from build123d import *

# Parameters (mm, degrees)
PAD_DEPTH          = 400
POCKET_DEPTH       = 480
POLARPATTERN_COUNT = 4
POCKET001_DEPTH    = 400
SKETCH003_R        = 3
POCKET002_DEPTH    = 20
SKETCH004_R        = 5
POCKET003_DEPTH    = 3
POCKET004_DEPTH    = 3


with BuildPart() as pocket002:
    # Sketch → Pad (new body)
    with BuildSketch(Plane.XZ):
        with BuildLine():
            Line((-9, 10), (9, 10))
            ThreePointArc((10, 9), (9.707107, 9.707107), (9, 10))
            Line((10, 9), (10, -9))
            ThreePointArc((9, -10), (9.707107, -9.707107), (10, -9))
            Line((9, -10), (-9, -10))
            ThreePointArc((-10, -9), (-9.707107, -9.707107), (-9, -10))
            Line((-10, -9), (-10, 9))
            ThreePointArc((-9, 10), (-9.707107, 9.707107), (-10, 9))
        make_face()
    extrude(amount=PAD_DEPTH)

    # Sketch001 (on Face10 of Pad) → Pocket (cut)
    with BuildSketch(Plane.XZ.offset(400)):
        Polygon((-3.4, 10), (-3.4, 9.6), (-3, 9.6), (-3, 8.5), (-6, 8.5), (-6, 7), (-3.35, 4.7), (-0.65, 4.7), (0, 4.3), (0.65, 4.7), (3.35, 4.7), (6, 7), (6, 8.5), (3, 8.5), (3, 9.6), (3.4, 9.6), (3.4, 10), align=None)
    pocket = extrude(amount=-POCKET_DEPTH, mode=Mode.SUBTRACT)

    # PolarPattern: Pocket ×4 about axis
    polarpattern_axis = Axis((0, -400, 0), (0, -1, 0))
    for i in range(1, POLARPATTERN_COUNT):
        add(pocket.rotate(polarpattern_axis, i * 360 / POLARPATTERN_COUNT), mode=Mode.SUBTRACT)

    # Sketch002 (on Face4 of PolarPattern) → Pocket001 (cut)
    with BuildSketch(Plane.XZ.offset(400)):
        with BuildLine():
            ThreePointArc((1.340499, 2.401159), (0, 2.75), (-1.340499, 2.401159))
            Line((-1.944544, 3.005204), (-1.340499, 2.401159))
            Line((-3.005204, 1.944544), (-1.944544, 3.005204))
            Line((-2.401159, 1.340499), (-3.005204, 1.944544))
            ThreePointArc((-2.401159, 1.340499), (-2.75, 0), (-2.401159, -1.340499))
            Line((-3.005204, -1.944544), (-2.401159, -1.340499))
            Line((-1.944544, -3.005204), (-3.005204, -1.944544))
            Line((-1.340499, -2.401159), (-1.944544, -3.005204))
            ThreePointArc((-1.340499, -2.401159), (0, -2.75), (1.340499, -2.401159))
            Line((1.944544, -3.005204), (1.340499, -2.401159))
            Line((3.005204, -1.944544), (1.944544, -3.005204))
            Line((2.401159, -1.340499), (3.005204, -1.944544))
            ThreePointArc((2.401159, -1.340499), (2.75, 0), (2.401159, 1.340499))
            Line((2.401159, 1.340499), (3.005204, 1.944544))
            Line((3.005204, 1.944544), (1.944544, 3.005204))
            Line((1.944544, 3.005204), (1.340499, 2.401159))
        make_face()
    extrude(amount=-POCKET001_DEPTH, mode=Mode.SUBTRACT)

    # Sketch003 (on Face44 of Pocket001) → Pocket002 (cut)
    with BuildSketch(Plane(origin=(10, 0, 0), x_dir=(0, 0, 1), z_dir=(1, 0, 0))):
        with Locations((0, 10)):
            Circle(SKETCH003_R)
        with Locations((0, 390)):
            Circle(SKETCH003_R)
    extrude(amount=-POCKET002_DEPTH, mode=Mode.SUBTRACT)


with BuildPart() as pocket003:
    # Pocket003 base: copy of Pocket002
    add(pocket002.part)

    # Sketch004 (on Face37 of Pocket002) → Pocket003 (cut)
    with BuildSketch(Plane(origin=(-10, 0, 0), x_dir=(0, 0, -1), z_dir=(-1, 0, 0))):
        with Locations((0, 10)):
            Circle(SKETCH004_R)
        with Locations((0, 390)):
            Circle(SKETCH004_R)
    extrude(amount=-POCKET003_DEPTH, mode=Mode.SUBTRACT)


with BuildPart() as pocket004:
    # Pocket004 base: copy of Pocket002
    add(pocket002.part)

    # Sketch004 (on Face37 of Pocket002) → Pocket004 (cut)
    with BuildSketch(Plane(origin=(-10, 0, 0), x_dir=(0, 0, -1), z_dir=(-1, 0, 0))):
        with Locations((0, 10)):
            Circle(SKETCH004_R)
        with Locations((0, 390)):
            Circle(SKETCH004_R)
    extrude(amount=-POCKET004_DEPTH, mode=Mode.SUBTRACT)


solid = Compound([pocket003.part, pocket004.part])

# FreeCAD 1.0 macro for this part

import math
import FreeCAD as App
import Part
import Sketcher


def add_polygon(sketch, points):
    """Adds a closed chain of lines whose ends are joined by coincident constraints."""
    first, n = sketch.GeometryCount, len(points)
    for a, b in zip(points, points[1:] + points[:1]):
        sketch.addGeometry(Part.LineSegment(App.Vector(*a, 0), App.Vector(*b, 0)), False)
    for i in range(n):
        sketch.addConstraint(Sketcher.Constraint("Coincident", first + i, 2, first + (i + 1) % n, 1))

doc = App.newDocument("Part")
body = doc.addObject("PartDesign::Body", "Body")

# Sketch on XZ plane
sketch1 = body.newObject("Sketcher::SketchObject", "Sketch")
sketch1.AttachmentSupport = (doc.getObject("XZ_Plane"), [""])
sketch1.MapMode = "FlatFace"
sketch1.addGeometry([
    Part.LineSegment(App.Vector(9, 10, 0), App.Vector(-9, 10, 0)),  # 0
    Part.ArcOfCircle(Part.Circle(App.Vector(-9.000001, 9.000001, 0), App.Vector(0, 0, 1), 0.999999), math.radians(89.999957), math.radians(180.000043)),  # 1
    Part.LineSegment(App.Vector(-10, 9, 0), App.Vector(-10, -9, 0)),  # 2
    Part.ArcOfCircle(Part.Circle(App.Vector(-9.000001, -9.000001, 0), App.Vector(0, 0, 1), 0.999999), math.radians(179.999957), math.radians(270.000043)),  # 3
    Part.LineSegment(App.Vector(-9, -10, 0), App.Vector(9, -10, 0)),  # 4
    Part.ArcOfCircle(Part.Circle(App.Vector(9.000001, -9.000001, 0), App.Vector(0, 0, 1), 0.999999), math.radians(-90.000043), math.radians(0.000043)),  # 5
    Part.LineSegment(App.Vector(10, -9, 0), App.Vector(10, 9, 0)),  # 6
    Part.ArcOfCircle(Part.Circle(App.Vector(9.000001, 9.000001, 0), App.Vector(0, 0, 1), 0.999999), math.radians(-0.000043), math.radians(90.000043)),  # 7
], False)
sketch1.addConstraint([
    Sketcher.Constraint("Tangent", 0, 2, 1, 1),
    Sketcher.Constraint("Tangent", 1, 2, 2, 1),
    Sketcher.Constraint("Tangent", 2, 2, 3, 1),
    Sketcher.Constraint("Tangent", 3, 2, 4, 1),
    Sketcher.Constraint("Tangent", 4, 2, 5, 1),
    Sketcher.Constraint("Tangent", 5, 2, 6, 1),
    Sketcher.Constraint("Tangent", 6, 2, 7, 1),
    Sketcher.Constraint("Tangent", 7, 2, 0, 1),
    Sketcher.Constraint("Horizontal", 0),
    Sketcher.Constraint("Vertical", 2),
    Sketcher.Constraint("Horizontal", 4),
    Sketcher.Constraint("Vertical", 6),
    Sketcher.Constraint("Equal", 1, 3),
    Sketcher.Constraint("Equal", 3, 5),
    Sketcher.Constraint("Equal", 5, 7),
    Sketcher.Constraint("Symmetric", 1, 3, 5, 3, -1, 1),
    Sketcher.Constraint("Equal", 4, 2),
    Sketcher.Constraint("Radius", 1, 0.999999),
    Sketcher.Constraint("DistanceX", 0, 2, 0, 1, 18.0),
])
pad1 = body.newObject("PartDesign::Pad", "Pad")
pad1.Profile = sketch1
pad1.Length = 400

# Sketch on XZ plane
sketch2 = body.newObject("Sketcher::SketchObject", "Sketch001")
sketch2.AttachmentSupport = (doc.getObject("XZ_Plane"), [""])
sketch2.MapMode = "FlatFace"
sketch2.AttachmentOffset = App.Placement(App.Vector(0, 0, 400), App.Rotation())
add_polygon(sketch2, [(-3.4, 10), (-3.4, 9.6), (-3, 9.6), (-3, 8.5), (-6, 8.5), (-6, 7), (-3.35, 4.7), (-0.65, 4.7), (0, 4.3), (0.65, 4.7), (3.35, 4.7), (6, 7), (6, 8.5), (3, 8.5), (3, 9.6), (3.4, 9.6), (3.4, 10)])  # lines 0-16
sketch2.addConstraint([
    Sketcher.Constraint("Vertical", 0),
    Sketcher.Constraint("Horizontal", 1),
    Sketcher.Constraint("Vertical", 2),
    Sketcher.Constraint("Horizontal", 3),
    Sketcher.Constraint("Vertical", 4),
    Sketcher.Constraint("Horizontal", 6),
    Sketcher.Constraint("Horizontal", 9),
    Sketcher.Constraint("Vertical", 11),
    Sketcher.Constraint("Horizontal", 12),
    Sketcher.Constraint("Vertical", 13),
    Sketcher.Constraint("Horizontal", 14),
    Sketcher.Constraint("Vertical", 15),
    Sketcher.Constraint("Horizontal", 16),
    Sketcher.Constraint("Symmetric", 6, 2, 8, 2, -2),
    Sketcher.Constraint("Symmetric", 4, 2, 10, 2, -2),
    Sketcher.Constraint("Symmetric", 2, 2, 12, 2, -2),
    Sketcher.Constraint("Symmetric", 0, 2, 14, 2, -2),
    Sketcher.Constraint("PointOnObject", 7, 2, -2),
    Sketcher.Constraint("Equal", 6, 9),
    Sketcher.Constraint("Equal", 14, 0),
    Sketcher.Constraint("DistanceX", 3, 2, 3, 1, 3.0),
    Sketcher.Constraint("DistanceX", 1, 1, 1, 2, 0.4),
    Sketcher.Constraint("DistanceX", 6, 1, 6, 2, 2.7),
    Sketcher.Constraint("DistanceX", 16, 2, 16, 1, 6.8),
    Sketcher.Constraint("DistanceY", 2, 2, 2, 1, 1.1),
    Sketcher.Constraint("DistanceY", 4, 2, 4, 1, 1.5),
    Sketcher.Constraint("DistanceY", -1, 1, 4, 2, 7.0),
    Sketcher.Constraint("DistanceX", 5, 2, 8, 2, 4.0),
    Sketcher.Constraint("DistanceY", -1, 1, 5, 2, 4.7),
    Sketcher.Constraint("DistanceY", -1, 1, 7, 2, 4.3),
])
pocket1 = body.newObject("PartDesign::Pocket", "Pocket")
pocket1.Profile = sketch2
pocket1.Length = 480
doc.recompute()

polarpattern = body.newObject("PartDesign::PolarPattern", "PolarPattern")
polarpattern.Originals = [pocket1]
polarpattern.Axis = (doc.getObject("Y_Axis"), [""])
polarpattern.Angle = 360
polarpattern.Occurrences = 4
body.Tip = polarpattern

# Sketch on XZ plane
sketch3 = body.newObject("Sketcher::SketchObject", "Sketch002")
sketch3.AttachmentSupport = (doc.getObject("XZ_Plane"), [""])
sketch3.MapMode = "FlatFace"
sketch3.AttachmentOffset = App.Placement(App.Vector(0, 0, 400), App.Rotation())
sketch3.addGeometry([
    Part.ArcOfCircle(Part.Circle(App.Vector(0, -0.000003, 0), App.Vector(0, 0, 1), 2.750003), math.radians(60.826646), math.radians(119.173354)),  # 0
    Part.LineSegment(App.Vector(-1.340499, 2.401159, 0), App.Vector(-1.944544, 3.005204, 0)),  # 1
    Part.LineSegment(App.Vector(-1.944544, 3.005204, 0), App.Vector(-3.005204, 1.944544, 0)),  # 2
    Part.LineSegment(App.Vector(-3.005204, 1.944544, 0), App.Vector(-2.401159, 1.340499, 0)),  # 3
    Part.ArcOfCircle(Part.Circle(App.Vector(0.000003, 0, 0), App.Vector(0, 0, 1), 2.750003), math.radians(150.826646), math.radians(209.173354)),  # 4
    Part.LineSegment(App.Vector(-2.401159, -1.340499, 0), App.Vector(-3.005204, -1.944544, 0)),  # 5
    Part.LineSegment(App.Vector(-3.005204, -1.944544, 0), App.Vector(-1.944544, -3.005204, 0)),  # 6
    Part.LineSegment(App.Vector(-1.944544, -3.005204, 0), App.Vector(-1.340499, -2.401159, 0)),  # 7
    Part.ArcOfCircle(Part.Circle(App.Vector(0, 0.000003, 0), App.Vector(0, 0, 1), 2.750003), math.radians(-119.173354), math.radians(-60.826646)),  # 8
    Part.LineSegment(App.Vector(1.340499, -2.401159, 0), App.Vector(1.944544, -3.005204, 0)),  # 9
    Part.LineSegment(App.Vector(1.944544, -3.005204, 0), App.Vector(3.005204, -1.944544, 0)),  # 10
    Part.LineSegment(App.Vector(3.005204, -1.944544, 0), App.Vector(2.401159, -1.340499, 0)),  # 11
    Part.ArcOfCircle(Part.Circle(App.Vector(-0.000003, 0, 0), App.Vector(0, 0, 1), 2.750003), math.radians(-29.173354), math.radians(29.173354)),  # 12
    Part.LineSegment(App.Vector(2.401159, 1.340499, 0), App.Vector(3.005204, 1.944544, 0)),  # 13
    Part.LineSegment(App.Vector(3.005204, 1.944544, 0), App.Vector(1.944544, 3.005204, 0)),  # 14
    Part.LineSegment(App.Vector(1.944544, 3.005204, 0), App.Vector(1.340499, 2.401159, 0)),  # 15
], False)
sketch3.addConstraint([
    Sketcher.Constraint("Coincident", 0, 2, 1, 1),
    Sketcher.Constraint("Coincident", 1, 2, 2, 1),
    Sketcher.Constraint("Coincident", 2, 2, 3, 1),
    Sketcher.Constraint("Coincident", 3, 2, 4, 1),
    Sketcher.Constraint("Coincident", 4, 2, 5, 1),
    Sketcher.Constraint("Coincident", 5, 2, 6, 1),
    Sketcher.Constraint("Coincident", 6, 2, 7, 1),
    Sketcher.Constraint("Coincident", 7, 2, 8, 1),
    Sketcher.Constraint("Coincident", 8, 2, 9, 1),
    Sketcher.Constraint("Coincident", 9, 2, 10, 1),
    Sketcher.Constraint("Coincident", 10, 2, 11, 1),
    Sketcher.Constraint("Coincident", 11, 2, 12, 1),
    Sketcher.Constraint("Coincident", 12, 2, 13, 1),
    Sketcher.Constraint("Coincident", 13, 2, 14, 1),
    Sketcher.Constraint("Coincident", 14, 2, 15, 1),
    Sketcher.Constraint("Coincident", 15, 2, 0, 1),
    Sketcher.Constraint("Coincident", 0, 3, -1, 1),
    Sketcher.Constraint("Coincident", 4, 3, -1, 1),
    Sketcher.Constraint("Coincident", 8, 3, -1, 1),
    Sketcher.Constraint("Coincident", 12, 3, -1, 1),
    Sketcher.Constraint("Equal", 0, 4),
    Sketcher.Constraint("Equal", 4, 8),
    Sketcher.Constraint("Equal", 8, 12),
    Sketcher.Constraint("Symmetric", 1, 2, 9, 2, -1, 1),
    Sketcher.Constraint("Symmetric", 2, 2, 10, 2, -1, 1),
    Sketcher.Constraint("Symmetric", 5, 2, 13, 2, -1, 1),
    Sketcher.Constraint("Symmetric", 6, 2, 14, 2, -1, 1),
    Sketcher.Constraint("Symmetric", 6, 2, 9, 2, -2),
    Sketcher.Constraint("Symmetric", 5, 2, 10, 2, -2),
    Sketcher.Constraint("Perpendicular", 1, 2),
    Sketcher.Constraint("Perpendicular", 2, 3),
    Sketcher.Constraint("Perpendicular", 3, 5),
    Sketcher.Constraint("Perpendicular", 5, 6),
    Sketcher.Constraint("Perpendicular", 6, 7),
    Sketcher.Constraint("Perpendicular", 7, 9),
    Sketcher.Constraint("Perpendicular", 10, 11),
    Sketcher.Constraint("Perpendicular", 11, 13),
    Sketcher.Constraint("Perpendicular", 14, 15),
    Sketcher.Constraint("Equal", 1, 3),
    Sketcher.Constraint("Distance", 2, 1.5),
    Sketcher.Constraint("Radius", 0, 2.750003),
    Sketcher.Constraint("DistanceY", 8, 3, 1, 2, 3.005201),
])
pocket2 = body.newObject("PartDesign::Pocket", "Pocket001")
pocket2.Profile = sketch3
pocket2.Length = 400

# Sketch on YZ plane
sketch4 = body.newObject("Sketcher::SketchObject", "Sketch003")
sketch4.AttachmentSupport = (doc.getObject("YZ_Plane"), [""])
sketch4.MapMode = "FlatFace"
sketch4.AttachmentOffset = App.Placement(App.Vector(0, 0, 10), App.Rotation())
sketch4.addGeometry([
    Part.Circle(App.Vector(-10, 0, 0), App.Vector(0, 0, 1), 3),
    Part.Circle(App.Vector(-390, 0, 0), App.Vector(0, 0, 1), 3),
], False)
sketch4.addConstraint([
    Sketcher.Constraint("Equal", 0, 1),
    Sketcher.Constraint("PointOnObject", 0, 3, -1),
    Sketcher.Constraint("PointOnObject", 1, 3, -1),
    Sketcher.Constraint("Diameter", 0, 6.0),
    Sketcher.Constraint("DistanceX", 0, 3, -1, 1, 10.0),
    Sketcher.Constraint("DistanceX", 1, 3, -1, 1, 390.0),
])
pocket3 = body.newObject("PartDesign::Pocket", "Pocket002")
pocket3.Profile = sketch4
pocket3.Length = 20
body2 = doc.addObject("PartDesign::Body", "Body001")
doc.recompute()

body2.BaseFeature = body
doc.recompute()

# Sketch on YZ plane
sketch5 = body2.newObject("Sketcher::SketchObject", "Sketch004")
sketch5.AttachmentSupport = (doc.getObject("YZ_Plane001"), [""])
sketch5.MapMode = "FlatFace"
sketch5.AttachmentOffset = App.Placement(App.Vector(0, 0, -10), App.Rotation())
sketch5.addGeometry([
    Part.Circle(App.Vector(-10, 0, 0), App.Vector(0, 0, 1), 5),
    Part.Circle(App.Vector(-390, 0, 0), App.Vector(0, 0, 1), 5),
], False)
sketch5.addConstraint([
    Sketcher.Constraint("Equal", 0, 1),
    Sketcher.Constraint("PointOnObject", 0, 3, -1),
    Sketcher.Constraint("PointOnObject", 1, 3, -1),
    Sketcher.Constraint("Diameter", 0, 10.0),
    Sketcher.Constraint("DistanceX", 0, 3, -1, 1, 10.0),
    Sketcher.Constraint("DistanceX", 1, 3, -1, 1, 390.0),
])
pocket4 = body2.newObject("PartDesign::Pocket", "Pocket003")
pocket4.Profile = sketch5
pocket4.Length = 3
pocket4.Reversed = True

# Sketch on YZ plane
sketch6 = body.newObject("Sketcher::SketchObject", "Sketch005")
sketch6.AttachmentSupport = (doc.getObject("YZ_Plane"), [""])
sketch6.MapMode = "FlatFace"
sketch6.AttachmentOffset = App.Placement(App.Vector(0, 0, -10), App.Rotation())
sketch6.addGeometry([
    Part.Circle(App.Vector(-10, 0, 0), App.Vector(0, 0, 1), 5),
    Part.Circle(App.Vector(-390, 0, 0), App.Vector(0, 0, 1), 5),
], False)
sketch6.addConstraint([
    Sketcher.Constraint("Equal", 0, 1),
    Sketcher.Constraint("PointOnObject", 0, 3, -1),
    Sketcher.Constraint("PointOnObject", 1, 3, -1),
    Sketcher.Constraint("Diameter", 0, 10.0),
    Sketcher.Constraint("DistanceX", 0, 3, -1, 1, 10.0),
    Sketcher.Constraint("DistanceX", 1, 3, -1, 1, 390.0),
])
pocket5 = body.newObject("PartDesign::Pocket", "Pocket004")
pocket5.Profile = sketch6
pocket5.Length = 3
pocket5.Reversed = True

doc.recompute()
